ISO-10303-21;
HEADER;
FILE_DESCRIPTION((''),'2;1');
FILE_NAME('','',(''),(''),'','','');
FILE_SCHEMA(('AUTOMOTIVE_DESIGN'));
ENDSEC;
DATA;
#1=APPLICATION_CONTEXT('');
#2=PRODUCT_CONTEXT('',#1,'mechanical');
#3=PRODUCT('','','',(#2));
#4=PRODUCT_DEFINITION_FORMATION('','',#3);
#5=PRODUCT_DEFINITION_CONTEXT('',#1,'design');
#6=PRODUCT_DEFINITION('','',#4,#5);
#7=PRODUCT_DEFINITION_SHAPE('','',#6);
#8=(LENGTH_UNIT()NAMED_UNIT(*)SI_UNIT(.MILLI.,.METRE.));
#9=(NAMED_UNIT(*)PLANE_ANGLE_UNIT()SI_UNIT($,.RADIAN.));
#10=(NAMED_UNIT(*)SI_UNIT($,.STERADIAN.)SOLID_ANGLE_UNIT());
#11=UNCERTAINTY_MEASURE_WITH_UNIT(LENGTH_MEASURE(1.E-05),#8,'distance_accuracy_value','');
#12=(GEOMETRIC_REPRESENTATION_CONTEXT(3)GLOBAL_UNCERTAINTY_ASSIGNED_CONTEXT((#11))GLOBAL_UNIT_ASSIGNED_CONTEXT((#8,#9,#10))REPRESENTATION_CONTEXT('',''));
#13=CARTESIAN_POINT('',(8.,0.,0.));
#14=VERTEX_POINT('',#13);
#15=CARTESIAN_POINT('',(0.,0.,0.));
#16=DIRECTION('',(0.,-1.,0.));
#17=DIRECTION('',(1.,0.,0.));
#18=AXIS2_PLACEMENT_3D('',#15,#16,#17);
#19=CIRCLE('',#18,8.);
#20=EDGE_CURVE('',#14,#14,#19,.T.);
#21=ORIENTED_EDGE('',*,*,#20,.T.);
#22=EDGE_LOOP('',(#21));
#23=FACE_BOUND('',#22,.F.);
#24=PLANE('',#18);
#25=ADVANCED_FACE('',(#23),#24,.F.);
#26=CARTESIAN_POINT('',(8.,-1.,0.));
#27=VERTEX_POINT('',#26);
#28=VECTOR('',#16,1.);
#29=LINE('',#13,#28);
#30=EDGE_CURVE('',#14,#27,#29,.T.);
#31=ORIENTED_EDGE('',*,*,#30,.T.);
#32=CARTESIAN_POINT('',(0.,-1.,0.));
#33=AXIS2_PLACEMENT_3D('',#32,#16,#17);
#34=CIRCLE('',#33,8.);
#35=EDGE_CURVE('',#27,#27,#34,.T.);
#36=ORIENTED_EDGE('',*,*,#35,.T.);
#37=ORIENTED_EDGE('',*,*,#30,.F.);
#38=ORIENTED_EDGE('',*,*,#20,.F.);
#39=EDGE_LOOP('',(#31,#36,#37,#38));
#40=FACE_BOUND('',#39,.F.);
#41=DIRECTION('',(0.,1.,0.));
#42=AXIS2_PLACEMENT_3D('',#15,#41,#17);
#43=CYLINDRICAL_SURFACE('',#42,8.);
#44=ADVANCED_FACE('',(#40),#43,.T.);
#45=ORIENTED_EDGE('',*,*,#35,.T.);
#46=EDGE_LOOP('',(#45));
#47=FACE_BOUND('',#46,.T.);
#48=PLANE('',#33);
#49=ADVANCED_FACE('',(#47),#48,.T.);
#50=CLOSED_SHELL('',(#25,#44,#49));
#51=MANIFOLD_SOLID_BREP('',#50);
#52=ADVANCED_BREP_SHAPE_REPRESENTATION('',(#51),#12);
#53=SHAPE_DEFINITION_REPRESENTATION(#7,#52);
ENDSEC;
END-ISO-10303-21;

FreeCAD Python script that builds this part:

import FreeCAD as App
import Part
import Sketcher

doc = App.newDocument("Part")
body = doc.addObject("PartDesign::Body", "Body")

# Sketch on XZ plane
sketch1 = body.newObject("Sketcher::SketchObject", "Sketch")
sketch1.AttachmentSupport = (doc.getObject("XZ_Plane"), [""])
sketch1.MapMode = "FlatFace"
sketch1.addGeometry(Part.Circle(App.Vector(0, 0, 0), App.Vector(0, 0, 1), 8), False)
sketch1.addConstraint([
    Sketcher.Constraint("Coincident", 0, 3, -1, 1),
    Sketcher.Constraint("Diameter", 0, 16.0),
])
pad1 = body.newObject("PartDesign::Pad", "Pad")
pad1.Profile = sketch1
pad1.Length = 1

doc.recompute()
